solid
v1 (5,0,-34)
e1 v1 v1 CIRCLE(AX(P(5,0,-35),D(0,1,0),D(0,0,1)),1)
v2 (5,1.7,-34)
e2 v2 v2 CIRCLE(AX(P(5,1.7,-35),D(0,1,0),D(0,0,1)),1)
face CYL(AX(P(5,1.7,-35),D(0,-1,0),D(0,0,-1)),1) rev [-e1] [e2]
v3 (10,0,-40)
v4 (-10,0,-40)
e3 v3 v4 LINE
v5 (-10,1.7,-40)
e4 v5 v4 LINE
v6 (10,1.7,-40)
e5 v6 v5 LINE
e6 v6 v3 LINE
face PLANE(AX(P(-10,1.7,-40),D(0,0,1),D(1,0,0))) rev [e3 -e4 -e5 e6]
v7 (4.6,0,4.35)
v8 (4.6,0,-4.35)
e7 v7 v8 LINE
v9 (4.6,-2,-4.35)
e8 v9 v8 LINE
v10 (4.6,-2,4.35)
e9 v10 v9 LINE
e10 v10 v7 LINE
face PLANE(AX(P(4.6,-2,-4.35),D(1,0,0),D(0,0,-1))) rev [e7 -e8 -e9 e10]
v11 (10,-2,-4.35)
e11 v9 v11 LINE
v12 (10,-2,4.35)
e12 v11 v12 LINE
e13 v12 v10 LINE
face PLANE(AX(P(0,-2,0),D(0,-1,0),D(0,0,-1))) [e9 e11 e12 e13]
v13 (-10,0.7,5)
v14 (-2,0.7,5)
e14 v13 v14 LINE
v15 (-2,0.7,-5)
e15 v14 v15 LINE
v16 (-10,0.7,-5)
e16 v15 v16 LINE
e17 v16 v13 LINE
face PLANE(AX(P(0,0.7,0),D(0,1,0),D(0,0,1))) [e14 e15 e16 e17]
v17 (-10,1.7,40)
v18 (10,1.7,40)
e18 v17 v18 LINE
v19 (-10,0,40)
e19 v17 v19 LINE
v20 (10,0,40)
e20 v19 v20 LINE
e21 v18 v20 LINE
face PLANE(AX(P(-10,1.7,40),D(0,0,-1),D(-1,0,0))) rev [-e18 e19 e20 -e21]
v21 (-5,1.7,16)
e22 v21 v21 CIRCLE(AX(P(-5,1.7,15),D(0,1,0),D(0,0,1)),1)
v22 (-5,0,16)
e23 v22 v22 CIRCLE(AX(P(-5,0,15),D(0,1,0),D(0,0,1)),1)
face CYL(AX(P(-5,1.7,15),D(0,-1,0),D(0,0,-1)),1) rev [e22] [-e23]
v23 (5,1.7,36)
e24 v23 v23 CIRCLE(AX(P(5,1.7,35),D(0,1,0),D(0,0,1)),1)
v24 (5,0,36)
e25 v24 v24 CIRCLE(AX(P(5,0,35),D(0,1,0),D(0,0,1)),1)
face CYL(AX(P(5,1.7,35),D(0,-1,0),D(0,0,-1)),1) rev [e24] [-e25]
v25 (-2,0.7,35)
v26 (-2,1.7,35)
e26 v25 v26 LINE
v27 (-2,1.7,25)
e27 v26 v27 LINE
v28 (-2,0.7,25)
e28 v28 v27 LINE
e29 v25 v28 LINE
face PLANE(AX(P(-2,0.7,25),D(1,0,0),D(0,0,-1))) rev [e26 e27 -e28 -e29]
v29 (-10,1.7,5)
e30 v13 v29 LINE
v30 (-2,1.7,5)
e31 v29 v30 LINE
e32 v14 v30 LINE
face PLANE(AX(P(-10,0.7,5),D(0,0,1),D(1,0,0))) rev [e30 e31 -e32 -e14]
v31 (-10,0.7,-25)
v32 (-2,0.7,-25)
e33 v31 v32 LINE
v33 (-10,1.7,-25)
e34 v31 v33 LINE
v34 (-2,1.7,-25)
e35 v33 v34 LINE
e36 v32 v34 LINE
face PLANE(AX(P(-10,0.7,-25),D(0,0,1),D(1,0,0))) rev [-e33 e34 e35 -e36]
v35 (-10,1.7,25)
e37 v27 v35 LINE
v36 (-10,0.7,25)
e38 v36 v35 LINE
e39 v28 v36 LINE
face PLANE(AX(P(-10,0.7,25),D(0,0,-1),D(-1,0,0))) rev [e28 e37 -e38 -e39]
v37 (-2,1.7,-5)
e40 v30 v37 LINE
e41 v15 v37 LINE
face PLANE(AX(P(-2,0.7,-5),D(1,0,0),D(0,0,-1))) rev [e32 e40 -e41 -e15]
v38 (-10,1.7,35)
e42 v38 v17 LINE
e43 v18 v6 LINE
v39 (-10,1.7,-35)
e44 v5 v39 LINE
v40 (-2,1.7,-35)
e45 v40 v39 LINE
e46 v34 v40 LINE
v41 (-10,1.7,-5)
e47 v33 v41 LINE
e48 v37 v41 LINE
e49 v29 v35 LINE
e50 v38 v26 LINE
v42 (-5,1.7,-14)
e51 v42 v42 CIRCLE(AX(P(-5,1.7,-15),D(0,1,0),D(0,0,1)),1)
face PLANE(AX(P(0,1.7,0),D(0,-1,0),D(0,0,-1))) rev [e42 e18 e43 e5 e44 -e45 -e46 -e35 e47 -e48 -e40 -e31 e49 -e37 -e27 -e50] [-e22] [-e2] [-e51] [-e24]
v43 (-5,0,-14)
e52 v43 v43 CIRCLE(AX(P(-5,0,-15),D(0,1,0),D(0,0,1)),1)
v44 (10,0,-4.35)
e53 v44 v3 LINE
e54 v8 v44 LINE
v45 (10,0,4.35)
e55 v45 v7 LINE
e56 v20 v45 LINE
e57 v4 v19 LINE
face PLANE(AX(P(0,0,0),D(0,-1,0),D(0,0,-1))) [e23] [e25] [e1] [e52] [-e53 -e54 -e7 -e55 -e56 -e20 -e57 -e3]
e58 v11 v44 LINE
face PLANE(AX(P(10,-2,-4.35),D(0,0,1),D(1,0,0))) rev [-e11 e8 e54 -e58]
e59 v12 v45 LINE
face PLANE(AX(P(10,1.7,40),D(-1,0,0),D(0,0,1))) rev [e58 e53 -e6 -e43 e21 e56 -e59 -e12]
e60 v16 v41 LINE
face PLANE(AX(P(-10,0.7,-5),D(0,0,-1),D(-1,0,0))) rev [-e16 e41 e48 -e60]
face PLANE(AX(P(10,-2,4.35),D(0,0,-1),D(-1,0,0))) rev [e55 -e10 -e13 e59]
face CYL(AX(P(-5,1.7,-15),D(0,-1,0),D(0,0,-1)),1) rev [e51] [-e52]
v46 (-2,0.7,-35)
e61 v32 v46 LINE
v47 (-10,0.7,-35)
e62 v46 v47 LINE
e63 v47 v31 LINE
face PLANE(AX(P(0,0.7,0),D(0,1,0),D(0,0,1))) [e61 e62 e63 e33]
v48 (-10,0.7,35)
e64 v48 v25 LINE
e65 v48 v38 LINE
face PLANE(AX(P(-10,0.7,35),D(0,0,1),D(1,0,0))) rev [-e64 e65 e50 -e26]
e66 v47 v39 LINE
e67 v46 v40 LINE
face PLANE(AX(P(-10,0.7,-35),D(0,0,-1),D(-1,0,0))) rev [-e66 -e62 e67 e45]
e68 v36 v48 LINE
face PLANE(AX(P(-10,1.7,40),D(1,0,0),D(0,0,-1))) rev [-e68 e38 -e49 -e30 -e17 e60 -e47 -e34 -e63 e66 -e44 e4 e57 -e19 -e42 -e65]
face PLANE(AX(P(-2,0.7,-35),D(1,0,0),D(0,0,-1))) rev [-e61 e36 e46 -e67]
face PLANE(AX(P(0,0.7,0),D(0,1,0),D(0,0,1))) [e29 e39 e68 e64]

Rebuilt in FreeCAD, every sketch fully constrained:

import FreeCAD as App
import Part
import Sketcher

V = App.Vector

doc = App.newDocument("Part")
params = doc.addObject("Spreadsheet::Sheet", "Params")
for row, (alias, value) in enumerate([
    ("sketch1_diameter", "2 mm"),
    ("sketch1_width", "20 mm"),
    ("sketch1_height", "80 mm"),
    ("pad1_length", "1.7 mm"),
    ("sketch2_width", "8 mm"),
    ("sketch2_height", "10 mm"),
    ("pocket1_length", "1 mm"),
    ("sketch3_width", "5.4 mm"),
    ("sketch3_height", "8.7 mm"),
    ("pad2_length", "2 mm"),
], start=1):
    params.set(f"A{row}", alias)
    params.set(f"B{row}", "=" + value)
    params.setAlias(f"B{row}", alias)

body = doc.addObject("PartDesign::Body", "Body")

# Sketch on XZ plane
sketch1 = body.newObject("Sketcher::SketchObject", "Sketch")
sketch1.AttachmentSupport = (doc.getObject("XZ_Plane"), [""])
sketch1.MapMode = "FlatFace"
sketch1.addGeometry(Part.LineSegment(V(-10, -40, 0), V(-10, 40, 0)), False)
sketch1.addGeometry(Part.LineSegment(V(-10, 40, 0), V(10, 40, 0)), False)
sketch1.addGeometry(Part.LineSegment(V(10, 40, 0), V(10, -40, 0)), False)
sketch1.addGeometry(Part.LineSegment(V(10, -40, 0), V(-10, -40, 0)), False)
sketch1.addGeometry(Part.Circle(V(-5, 15, 0), V(0, 0, 1), 1), False)
sketch1.addGeometry(Part.Circle(V(5, 35, 0), V(0, 0, 1), 1), False)
sketch1.addGeometry(Part.Circle(V(-5, -15, 0), V(0, 0, 1), 1), False)
sketch1.addGeometry(Part.Circle(V(5, -35, 0), V(0, 0, 1), 1), False)
sketch1.addConstraint(Sketcher.Constraint("Coincident", 0, 2, 1, 1))
sketch1.addConstraint(Sketcher.Constraint("Coincident", 1, 2, 2, 1))
sketch1.addConstraint(Sketcher.Constraint("Coincident", 2, 2, 3, 1))
sketch1.addConstraint(Sketcher.Constraint("Coincident", 3, 2, 0, 1))
sketch1.addConstraint(Sketcher.Constraint("Vertical", 0))
sketch1.addConstraint(Sketcher.Constraint("Horizontal", 1))
sketch1.addConstraint(Sketcher.Constraint("Vertical", 2))
sketch1.addConstraint(Sketcher.Constraint("Horizontal", 3))
sketch1.addConstraint(Sketcher.Constraint("Equal", 4, 5))
sketch1.addConstraint(Sketcher.Constraint("Equal", 5, 6))
sketch1.addConstraint(Sketcher.Constraint("Equal", 6, 7))
sketch1.addConstraint(Sketcher.Constraint("Symmetric", 0, 2, 2, 2, -1, 1))
sketch1.addConstraint(Sketcher.Constraint("Symmetric", 4, 3, 6, 3, -1))
sketch1.addConstraint(Sketcher.Constraint("Symmetric", 5, 3, 7, 3, -1))
sketch1.addConstraint(Sketcher.Constraint("Diameter", 4, 2.0))
sketch1.addConstraint(Sketcher.Constraint("DistanceX", 1, 1, 1, 2, 20.0))
sketch1.addConstraint(Sketcher.Constraint("DistanceY", 0, 1, 0, 2, 80.0))
sketch1.addConstraint(Sketcher.Constraint("DistanceX", 4, 3, -1, 1, 5.0))
sketch1.addConstraint(Sketcher.Constraint("DistanceY", -1, 1, 4, 3, 15.0))
sketch1.addConstraint(Sketcher.Constraint("DistanceX", -1, 1, 5, 3, 5.0))
sketch1.addConstraint(Sketcher.Constraint("DistanceY", -1, 1, 5, 3, 35.0))
sketch1.setExpression("Constraints[14]", "Params.sketch1_diameter")
sketch1.setExpression("Constraints[15]", "Params.sketch1_width")
sketch1.setExpression("Constraints[16]", "Params.sketch1_height")
pad1 = body.newObject("PartDesign::Pad", "Pad")
pad1.Profile = sketch1
pad1.setExpression("Length", "Params.pad1_length")
pad1.Reversed = True

# Sketch on XZ plane
sketch2 = body.newObject("Sketcher::SketchObject", "Sketch001")
sketch2.AttachmentSupport = (doc.getObject("XZ_Plane"), [""])
sketch2.MapMode = "FlatFace"
sketch2.AttachmentOffset = App.Placement(V(0, 0, -1.7), App.Rotation())
sketch2.addGeometry(Part.LineSegment(V(-10, 25, 0), V(-10, 35, 0)), False)
sketch2.addGeometry(Part.LineSegment(V(-10, 35, 0), V(-2, 35, 0)), False)
sketch2.addGeometry(Part.LineSegment(V(-2, 35, 0), V(-2, 25, 0)), False)
sketch2.addGeometry(Part.LineSegment(V(-2, 25, 0), V(-10, 25, 0)), False)
sketch2.addGeometry(Part.LineSegment(V(-10, -5, 0), V(-10, 5, 0)), False)
sketch2.addGeometry(Part.LineSegment(V(-10, 5, 0), V(-2, 5, 0)), False)
sketch2.addGeometry(Part.LineSegment(V(-2, 5, 0), V(-2, -5, 0)), False)
sketch2.addGeometry(Part.LineSegment(V(-2, -5, 0), V(-10, -5, 0)), False)
sketch2.addGeometry(Part.LineSegment(V(-10, -35, 0), V(-10, -25, 0)), False)
sketch2.addGeometry(Part.LineSegment(V(-10, -25, 0), V(-2, -25, 0)), False)
sketch2.addGeometry(Part.LineSegment(V(-2, -25, 0), V(-2, -35, 0)), False)
sketch2.addGeometry(Part.LineSegment(V(-2, -35, 0), V(-10, -35, 0)), False)
sketch2.addConstraint(Sketcher.Constraint("Coincident", 0, 2, 1, 1))
sketch2.addConstraint(Sketcher.Constraint("Coincident", 1, 2, 2, 1))
sketch2.addConstraint(Sketcher.Constraint("Coincident", 2, 2, 3, 1))
sketch2.addConstraint(Sketcher.Constraint("Coincident", 3, 2, 0, 1))
sketch2.addConstraint(Sketcher.Constraint("Coincident", 4, 2, 5, 1))
sketch2.addConstraint(Sketcher.Constraint("Coincident", 5, 2, 6, 1))
sketch2.addConstraint(Sketcher.Constraint("Coincident", 6, 2, 7, 1))
sketch2.addConstraint(Sketcher.Constraint("Coincident", 7, 2, 4, 1))
sketch2.addConstraint(Sketcher.Constraint("Coincident", 8, 2, 9, 1))
sketch2.addConstraint(Sketcher.Constraint("Coincident", 9, 2, 10, 1))
sketch2.addConstraint(Sketcher.Constraint("Coincident", 10, 2, 11, 1))
sketch2.addConstraint(Sketcher.Constraint("Coincident", 11, 2, 8, 1))
sketch2.addConstraint(Sketcher.Constraint("Vertical", 0))
sketch2.addConstraint(Sketcher.Constraint("Horizontal", 1))
sketch2.addConstraint(Sketcher.Constraint("Vertical", 2))
sketch2.addConstraint(Sketcher.Constraint("Horizontal", 3))
sketch2.addConstraint(Sketcher.Constraint("Vertical", 4))
sketch2.addConstraint(Sketcher.Constraint("Horizontal", 5))
sketch2.addConstraint(Sketcher.Constraint("Vertical", 6))
sketch2.addConstraint(Sketcher.Constraint("Horizontal", 7))
sketch2.addConstraint(Sketcher.Constraint("Vertical", 8))
sketch2.addConstraint(Sketcher.Constraint("Horizontal", 9))
sketch2.addConstraint(Sketcher.Constraint("Vertical", 10))
sketch2.addConstraint(Sketcher.Constraint("Horizontal", 11))
sketch2.addConstraint(Sketcher.Constraint("Symmetric", 3, 2, 8, 2, -1))
sketch2.addConstraint(Sketcher.Constraint("Symmetric", 1, 2, 10, 2, -1))
sketch2.addConstraint(Sketcher.Constraint("Vertical", 3, 2, 4, 2))
sketch2.addConstraint(Sketcher.Constraint("Vertical", 2, 2, 5, 2))
sketch2.addConstraint(Sketcher.Constraint("Equal", 2, 4))
sketch2.addConstraint(Sketcher.Constraint("DistanceX", 1, 1, 1, 2, 8.0))
sketch2.addConstraint(Sketcher.Constraint("DistanceY", 0, 1, 0, 2, 10.0))
sketch2.addConstraint(Sketcher.Constraint("DistanceX", 0, 2, -1, 1, 10.0))
sketch2.addConstraint(Sketcher.Constraint("DistanceY", -1, 1, 0, 2, 35.0))
sketch2.addConstraint(Sketcher.Constraint("DistanceY", -1, 1, 4, 2, 5.0))
sketch2.setExpression("Constraints[29]", "Params.sketch2_width")
sketch2.setExpression("Constraints[30]", "Params.sketch2_height")
pocket1 = body.newObject("PartDesign::Pocket", "Pocket")
pocket1.Profile = sketch2
pocket1.setExpression("Length", "Params.pocket1_length")
pocket1.Reversed = True

# Sketch on XZ plane
sketch3 = body.newObject("Sketcher::SketchObject", "Sketch002")
sketch3.AttachmentSupport = (doc.getObject("XZ_Plane"), [""])
sketch3.MapMode = "FlatFace"
sketch3.addGeometry(Part.LineSegment(V(5, 4, 0), V(5, -4, 0)), False)
sketch3.addGeometry(Part.LineSegment(V(5, -4, 0), V(10, -4, 0)), False)
sketch3.addGeometry(Part.LineSegment(V(10, -4, 0), V(10, 4, 0)), False)
sketch3.addGeometry(Part.LineSegment(V(10, 4, 0), V(5, 4, 0)), False)
sketch3.addConstraint(Sketcher.Constraint("Coincident", 0, 2, 1, 1))
sketch3.addConstraint(Sketcher.Constraint("Coincident", 1, 2, 2, 1))
sketch3.addConstraint(Sketcher.Constraint("Coincident", 2, 2, 3, 1))
sketch3.addConstraint(Sketcher.Constraint("Coincident", 3, 2, 0, 1))
sketch3.addConstraint(Sketcher.Constraint("Vertical", 0))
sketch3.addConstraint(Sketcher.Constraint("Horizontal", 1))
sketch3.addConstraint(Sketcher.Constraint("Vertical", 2))
sketch3.addConstraint(Sketcher.Constraint("Horizontal", 3))
sketch3.addConstraint(Sketcher.Constraint("DistanceX", 1, 1, 1, 2, 5.4))
sketch3.addConstraint(Sketcher.Constraint("DistanceY", 0, 2, 0, 1, 8.7))
sketch3.addConstraint(Sketcher.Constraint("DistanceX", -1, 1, 1, 2, 10.0))
sketch3.addConstraint(Sketcher.Constraint("DistanceY", 0, 2, -1, 1, 4.35))
sketch3.setExpression("Constraints[8]", "Params.sketch3_width")
sketch3.setExpression("Constraints[9]", "Params.sketch3_height")
pad2 = body.newObject("PartDesign::Pad", "Pad001")
pad2.Profile = sketch3
pad2.setExpression("Length", "Params.pad2_length")

doc.recompute()
